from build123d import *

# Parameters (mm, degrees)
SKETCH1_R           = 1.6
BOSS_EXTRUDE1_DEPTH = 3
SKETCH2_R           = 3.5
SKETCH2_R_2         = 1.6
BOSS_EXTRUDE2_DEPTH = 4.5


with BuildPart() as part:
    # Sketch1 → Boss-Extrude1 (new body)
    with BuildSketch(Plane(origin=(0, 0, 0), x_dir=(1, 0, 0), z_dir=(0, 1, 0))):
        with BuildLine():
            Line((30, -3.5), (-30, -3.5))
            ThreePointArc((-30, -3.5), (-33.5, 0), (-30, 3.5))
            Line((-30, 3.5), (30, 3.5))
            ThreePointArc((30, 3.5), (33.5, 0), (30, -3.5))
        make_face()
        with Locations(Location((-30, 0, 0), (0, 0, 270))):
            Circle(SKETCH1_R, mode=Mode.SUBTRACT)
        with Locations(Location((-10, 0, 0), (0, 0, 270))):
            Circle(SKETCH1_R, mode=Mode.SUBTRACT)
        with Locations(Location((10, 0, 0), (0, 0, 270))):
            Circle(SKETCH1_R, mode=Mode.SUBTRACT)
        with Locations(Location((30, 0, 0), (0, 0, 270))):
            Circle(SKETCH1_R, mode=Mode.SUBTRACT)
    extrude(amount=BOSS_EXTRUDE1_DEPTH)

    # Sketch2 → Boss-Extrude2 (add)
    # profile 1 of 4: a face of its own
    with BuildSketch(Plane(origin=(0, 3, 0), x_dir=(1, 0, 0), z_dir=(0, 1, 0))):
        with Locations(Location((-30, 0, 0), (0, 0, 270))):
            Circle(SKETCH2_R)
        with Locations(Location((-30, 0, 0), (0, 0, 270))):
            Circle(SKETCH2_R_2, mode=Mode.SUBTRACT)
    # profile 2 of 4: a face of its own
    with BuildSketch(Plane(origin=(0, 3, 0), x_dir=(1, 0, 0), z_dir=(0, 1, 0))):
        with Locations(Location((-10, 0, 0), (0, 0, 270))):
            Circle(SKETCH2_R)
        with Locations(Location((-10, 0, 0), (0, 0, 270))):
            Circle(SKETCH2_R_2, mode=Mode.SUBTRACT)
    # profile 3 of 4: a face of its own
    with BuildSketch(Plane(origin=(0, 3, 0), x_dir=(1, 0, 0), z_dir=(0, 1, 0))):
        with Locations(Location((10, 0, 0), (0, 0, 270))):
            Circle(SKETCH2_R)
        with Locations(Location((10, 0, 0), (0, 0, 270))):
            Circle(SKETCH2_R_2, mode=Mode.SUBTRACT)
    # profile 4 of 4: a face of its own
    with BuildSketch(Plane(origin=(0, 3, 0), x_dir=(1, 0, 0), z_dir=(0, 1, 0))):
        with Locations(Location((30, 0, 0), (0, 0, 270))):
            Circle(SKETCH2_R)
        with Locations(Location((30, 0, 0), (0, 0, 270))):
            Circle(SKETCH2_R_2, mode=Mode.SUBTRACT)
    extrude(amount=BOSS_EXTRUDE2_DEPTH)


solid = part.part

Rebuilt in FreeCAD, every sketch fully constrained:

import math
import FreeCAD as App
import Part
import Sketcher
Q = App.Units.Quantity

doc = App.newDocument("Part")
body = doc.addObject("PartDesign::Body", "Body")

# Sketch on XZ plane
sketch1 = doc.addObject("Sketcher::SketchObject", "Sketch")
body.addObject(sketch1)
sketch1.AttachmentSupport = (doc.XZ_Plane, [""])
sketch1.MapMode = "FlatFace"
sketch1.addGeometry(Part.LineSegment(App.Vector(-30, 3.5, 0), App.Vector(30, 3.5, 0)), False)
sketch1.addGeometry(Part.ArcOfCircle(Part.Circle(App.Vector(30, 0, 0), App.Vector(0, 0, 1), 3.5), math.radians(-90), math.radians(90)), False)
sketch1.addGeometry(Part.LineSegment(App.Vector(30, -3.5, 0), App.Vector(-30, -3.5, 0)), False)
sketch1.addGeometry(Part.ArcOfCircle(Part.Circle(App.Vector(-30, 0, 0), App.Vector(0, 0, 1), 3.5), math.radians(90), math.radians(270)), False)
sketch1.addGeometry(Part.Circle(App.Vector(30, 0, 0), App.Vector(0, 0, 1), 1.6), False)
sketch1.addGeometry(Part.Circle(App.Vector(10, 0, 0), App.Vector(0, 0, 1), 1.6), False)
sketch1.addGeometry(Part.Circle(App.Vector(-10, 0, 0), App.Vector(0, 0, 1), 1.6), False)
sketch1.addGeometry(Part.Circle(App.Vector(-30, 0, 0), App.Vector(0, 0, 1), 1.6), False)
sketch1.addConstraint(Sketcher.Constraint("Tangent", 0, 2, 1, 2))
sketch1.addConstraint(Sketcher.Constraint("Tangent", 1, 1, 2, 1))
sketch1.addConstraint(Sketcher.Constraint("Tangent", 2, 2, 3, 2))
sketch1.addConstraint(Sketcher.Constraint("Tangent", 3, 1, 0, 1))
sketch1.addConstraint(Sketcher.Constraint("Horizontal", 0))
sketch1.addConstraint(Sketcher.Constraint("Horizontal", 2))
sketch1.addConstraint(Sketcher.Constraint("Coincident", 4, 3, 1, 3))
sketch1.addConstraint(Sketcher.Constraint("Coincident", 7, 3, 3, 3))
sketch1.addConstraint(Sketcher.Constraint("Equal", 4, 5))
sketch1.addConstraint(Sketcher.Constraint("Equal", 5, 6))
sketch1.addConstraint(Sketcher.Constraint("Equal", 6, 7))
sketch1.addConstraint(Sketcher.Constraint("Symmetric", 1, 3, 3, 3, -1, 1))
sketch1.addConstraint(Sketcher.Constraint("Symmetric", 5, 3, 6, 3, -1, 1))
sketch1.addConstraint(Sketcher.Constraint("PointOnObject", 5, 3, -1))
sketch1.addConstraint(Sketcher.Constraint("Diameter", 4, Q("3.2 mm")))
sketch1.addConstraint(Sketcher.Constraint("Radius", 1, Q("3.5 mm")))
sketch1.addConstraint(Sketcher.Constraint("DistanceX", 0, 1, 0, 2, Q("60 mm")))
sketch1.addConstraint(Sketcher.Constraint("DistanceX", -1, 1, 5, 3, Q("10 mm")))
pad1 = doc.addObject("PartDesign::Pad", "Pad")
body.addObject(pad1)
pad1.Profile = sketch1
pad1.Length = 3
pad1.Reversed = True

# Sketch on XZ plane
sketch2 = doc.addObject("Sketcher::SketchObject", "Sketch001")
body.addObject(sketch2)
sketch2.AttachmentSupport = (doc.XZ_Plane, [""])
sketch2.MapMode = "FlatFace"
sketch2.AttachmentOffset = App.Placement(App.Vector(0, 0, -3), App.Rotation())
sketch2.addGeometry(Part.Circle(App.Vector(-30, 0, 0), App.Vector(0, 0, 1), 3.5), False)
sketch2.addGeometry(Part.Circle(App.Vector(-30, 0, 0), App.Vector(0, 0, 1), 1.6), False)
sketch2.addGeometry(Part.Circle(App.Vector(-10, 0, 0), App.Vector(0, 0, 1), 3.5), False)
sketch2.addGeometry(Part.Circle(App.Vector(-10, 0, 0), App.Vector(0, 0, 1), 1.6), False)
sketch2.addGeometry(Part.Circle(App.Vector(10, 0, 0), App.Vector(0, 0, 1), 3.5), False)
sketch2.addGeometry(Part.Circle(App.Vector(10, 0, 0), App.Vector(0, 0, 1), 1.6), False)
sketch2.addGeometry(Part.Circle(App.Vector(30, 0, 0), App.Vector(0, 0, 1), 3.5), False)
sketch2.addGeometry(Part.Circle(App.Vector(30, 0, 0), App.Vector(0, 0, 1), 1.6), False)
sketch2.addConstraint(Sketcher.Constraint("Coincident", 1, 3, 0, 3))
sketch2.addConstraint(Sketcher.Constraint("Coincident", 3, 3, 2, 3))
sketch2.addConstraint(Sketcher.Constraint("Coincident", 5, 3, 4, 3))
sketch2.addConstraint(Sketcher.Constraint("Coincident", 7, 3, 6, 3))
sketch2.addConstraint(Sketcher.Constraint("Equal", 0, 2))
sketch2.addConstraint(Sketcher.Constraint("Equal", 1, 3))
sketch2.addConstraint(Sketcher.Constraint("Equal", 2, 4))
sketch2.addConstraint(Sketcher.Constraint("Equal", 3, 5))
sketch2.addConstraint(Sketcher.Constraint("Equal", 4, 6))
sketch2.addConstraint(Sketcher.Constraint("Equal", 5, 7))
sketch2.addConstraint(Sketcher.Constraint("Symmetric", 2, 3, 4, 3, -1, 1))
sketch2.addConstraint(Sketcher.Constraint("Symmetric", 0, 3, 6, 3, -1, 1))
sketch2.addConstraint(Sketcher.Constraint("PointOnObject", 0, 3, -1))
sketch2.addConstraint(Sketcher.Constraint("PointOnObject", 2, 3, -1))
sketch2.addConstraint(Sketcher.Constraint("Diameter", 0, Q("7 mm")))
sketch2.addConstraint(Sketcher.Constraint("Diameter", 1, Q("3.2 mm")))
sketch2.addConstraint(Sketcher.Constraint("DistanceX", 0, 3, -1, 1, Q("30 mm")))
sketch2.addConstraint(Sketcher.Constraint("DistanceX", 2, 3, -1, 1, Q("10 mm")))
pad2 = doc.addObject("PartDesign::Pad", "Pad001")
body.addObject(pad2)
pad2.Profile = sketch2
pad2.Length = 4.5
pad2.Reversed = True

doc.recompute()
